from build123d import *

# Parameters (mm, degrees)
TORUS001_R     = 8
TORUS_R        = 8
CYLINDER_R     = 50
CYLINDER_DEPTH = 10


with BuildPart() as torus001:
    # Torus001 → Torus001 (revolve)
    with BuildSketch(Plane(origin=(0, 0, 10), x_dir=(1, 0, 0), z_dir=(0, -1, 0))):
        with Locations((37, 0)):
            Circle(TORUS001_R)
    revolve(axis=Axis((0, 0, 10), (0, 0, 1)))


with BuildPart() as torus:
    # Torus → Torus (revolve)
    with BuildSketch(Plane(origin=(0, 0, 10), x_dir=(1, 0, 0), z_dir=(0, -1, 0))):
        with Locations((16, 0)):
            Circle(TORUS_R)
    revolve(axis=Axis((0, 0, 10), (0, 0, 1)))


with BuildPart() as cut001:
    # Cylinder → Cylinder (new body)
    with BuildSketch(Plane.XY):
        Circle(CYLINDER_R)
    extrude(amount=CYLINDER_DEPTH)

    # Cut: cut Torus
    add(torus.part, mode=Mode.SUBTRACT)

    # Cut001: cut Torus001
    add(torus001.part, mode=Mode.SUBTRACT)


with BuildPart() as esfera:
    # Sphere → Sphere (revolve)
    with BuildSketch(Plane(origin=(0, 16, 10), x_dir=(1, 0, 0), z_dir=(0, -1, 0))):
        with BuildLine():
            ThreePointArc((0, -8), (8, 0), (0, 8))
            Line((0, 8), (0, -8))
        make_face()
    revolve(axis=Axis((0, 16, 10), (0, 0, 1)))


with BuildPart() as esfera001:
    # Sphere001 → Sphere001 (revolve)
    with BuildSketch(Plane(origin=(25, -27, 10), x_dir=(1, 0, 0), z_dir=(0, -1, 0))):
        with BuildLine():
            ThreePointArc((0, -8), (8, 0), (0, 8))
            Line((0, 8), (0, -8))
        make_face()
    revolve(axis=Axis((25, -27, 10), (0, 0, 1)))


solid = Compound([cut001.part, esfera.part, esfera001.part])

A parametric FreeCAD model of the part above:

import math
import FreeCAD as App
import Part
import Sketcher
from FreeCAD import Vector

doc = App.newDocument("Part")
body = doc.addObject("PartDesign::Body", "Body")

# Sketch on XZ plane
sketch1 = doc.addObject("Sketcher::SketchObject", "Sketch")
body.addObject(sketch1)
sketch1.AttachmentSupport = (doc.XZ_Plane, [""])
sketch1.MapMode = "FlatFace"
sketch1.addGeometry(Part.Circle(Vector(37, 10, 0), Vector(0, 0, 1), 8), False)
sketch1.addConstraint([
    Sketcher.Constraint("Diameter", 0, 16.0),
    Sketcher.Constraint("DistanceX", -1, 1, 0, 3, 37.0),
    Sketcher.Constraint("DistanceY", -1, 1, 0, 3, 10.0),
])
revolution = doc.addObject("PartDesign::Revolution", "Revolution")
body.addObject(revolution)
revolution.Profile = sketch1
revolution.ReferenceAxis = (sketch1, ["V_Axis"])
revolution.Angle = 360
body2 = doc.addObject("PartDesign::Body", "Body001")

# Sketch on XZ plane
sketch2 = doc.addObject("Sketcher::SketchObject", "Sketch001")
body2.addObject(sketch2)
sketch2.AttachmentSupport = (doc.getObject("XZ_Plane001"), [""])
sketch2.MapMode = "FlatFace"
sketch2.addGeometry(Part.Circle(Vector(16, 10, 0), Vector(0, 0, 1), 8), False)
sketch2.addConstraint([
    Sketcher.Constraint("Diameter", 0, 16.0),
    Sketcher.Constraint("DistanceX", -1, 1, 0, 3, 16.0),
    Sketcher.Constraint("DistanceY", -1, 1, 0, 3, 10.0),
])
revolution2 = doc.addObject("PartDesign::Revolution", "Revolution001")
body2.addObject(revolution2)
revolution2.Profile = sketch2
revolution2.ReferenceAxis = (sketch2, ["V_Axis"])
revolution2.Angle = 360
body3 = doc.addObject("PartDesign::Body", "Body002")

# Sketch on XY plane
sketch3 = doc.addObject("Sketcher::SketchObject", "Sketch002")
body3.addObject(sketch3)
sketch3.AttachmentSupport = (doc.getObject("XY_Plane002"), [""])
sketch3.MapMode = "FlatFace"
sketch3.addGeometry(Part.Circle(Vector(0, 0, 0), Vector(0, 0, 1), 50), False)
sketch3.addConstraint([
    Sketcher.Constraint("Coincident", 0, 3, -1, 1),
    Sketcher.Constraint("Diameter", 0, 100.0),
])
pad1 = doc.addObject("PartDesign::Pad", "Pad")
body3.addObject(pad1)
pad1.Profile = sketch3
pad1.Length = 10
doc.recompute()

boolean = doc.addObject("PartDesign::Boolean", "Boolean")
body3.addObject(boolean)
boolean.Type = "Cut"
boolean.addObjects([body2])
doc.recompute()

boolean2 = doc.addObject("PartDesign::Boolean", "Boolean001")
body3.addObject(boolean2)
boolean2.Type = "Cut"
boolean2.addObjects([body])
body4 = doc.addObject("PartDesign::Body", "Body003")

# Sketch on XZ plane
sketch4 = doc.addObject("Sketcher::SketchObject", "Sketch003")
body4.addObject(sketch4)
sketch4.AttachmentSupport = (doc.getObject("XZ_Plane003"), [""])
sketch4.MapMode = "FlatFace"
sketch4.AttachmentOffset = App.Placement(Vector(0, 0, -16), App.Rotation())
sketch4.addGeometry([
    Part.ArcOfCircle(Part.Circle(Vector(0, 10, 0), Vector(0, 0, 1), 8), math.radians(-90), math.radians(90)),
    Part.LineSegment(Vector(0, 18, 0), Vector(0, 2, 0)),
], False)
sketch4.addConstraint([
    Sketcher.Constraint("Coincident", 0, 1, 1, 2),
    Sketcher.Constraint("Coincident", 1, 1, 0, 2),
    Sketcher.Constraint("Vertical", 1),
    Sketcher.Constraint("PointOnObject", 0, 3, -2),
    Sketcher.Constraint("PointOnObject", 0, 1, -2),
    Sketcher.Constraint("Radius", 0, 8.0),
    Sketcher.Constraint("DistanceY", -1, 1, 0, 3, 10.0),
])
revolution3 = doc.addObject("PartDesign::Revolution", "Revolution002")
body4.addObject(revolution3)
revolution3.Profile = sketch4
revolution3.ReferenceAxis = (sketch4, ["V_Axis"])
revolution3.Angle = 360
body5 = doc.addObject("PartDesign::Body", "Body004")

# Sketch on XZ plane
sketch5 = doc.addObject("Sketcher::SketchObject", "Sketch004")
body5.addObject(sketch5)
sketch5.AttachmentSupport = (doc.getObject("XZ_Plane004"), [""])
sketch5.MapMode = "FlatFace"
sketch5.AttachmentOffset = App.Placement(Vector(0, 0, 27), App.Rotation())
sketch5.addGeometry([
    Part.ArcOfCircle(Part.Circle(Vector(25, 10, 0), Vector(0, 0, 1), 8), math.radians(-90), math.radians(90)),
    Part.LineSegment(Vector(25, 18, 0), Vector(25, 2, 0)),
], False)
sketch5.addGeometry(Part.LineSegment(Vector(25, 2, 0), Vector(25, 18, 0)), True)  # axis
sketch5.addConstraint([
    Sketcher.Constraint("Coincident", 0, 1, 1, 2),
    Sketcher.Constraint("Coincident", 1, 1, 0, 2),
    Sketcher.Constraint("Vertical", 1),
    Sketcher.Constraint("Vertical", 2),
    Sketcher.Constraint("Coincident", 2, 1, 0, 1),
    Sketcher.Constraint("Equal", 1, 2),
    Sketcher.Constraint("Radius", 0, 8.0),
    Sketcher.Constraint("DistanceX", -1, 1, 0, 3, 25.0),
    Sketcher.Constraint("DistanceY", -1, 1, 0, 3, 10.0),
    Sketcher.Constraint("DistanceX", -1, 1, 0, 1, 25.0),
])
revolution4 = doc.addObject("PartDesign::Revolution", "Revolution003")
body5.addObject(revolution4)
revolution4.Profile = sketch5
revolution4.ReferenceAxis = (sketch5, ["Axis0"])
revolution4.Angle = 360

doc.recompute()
